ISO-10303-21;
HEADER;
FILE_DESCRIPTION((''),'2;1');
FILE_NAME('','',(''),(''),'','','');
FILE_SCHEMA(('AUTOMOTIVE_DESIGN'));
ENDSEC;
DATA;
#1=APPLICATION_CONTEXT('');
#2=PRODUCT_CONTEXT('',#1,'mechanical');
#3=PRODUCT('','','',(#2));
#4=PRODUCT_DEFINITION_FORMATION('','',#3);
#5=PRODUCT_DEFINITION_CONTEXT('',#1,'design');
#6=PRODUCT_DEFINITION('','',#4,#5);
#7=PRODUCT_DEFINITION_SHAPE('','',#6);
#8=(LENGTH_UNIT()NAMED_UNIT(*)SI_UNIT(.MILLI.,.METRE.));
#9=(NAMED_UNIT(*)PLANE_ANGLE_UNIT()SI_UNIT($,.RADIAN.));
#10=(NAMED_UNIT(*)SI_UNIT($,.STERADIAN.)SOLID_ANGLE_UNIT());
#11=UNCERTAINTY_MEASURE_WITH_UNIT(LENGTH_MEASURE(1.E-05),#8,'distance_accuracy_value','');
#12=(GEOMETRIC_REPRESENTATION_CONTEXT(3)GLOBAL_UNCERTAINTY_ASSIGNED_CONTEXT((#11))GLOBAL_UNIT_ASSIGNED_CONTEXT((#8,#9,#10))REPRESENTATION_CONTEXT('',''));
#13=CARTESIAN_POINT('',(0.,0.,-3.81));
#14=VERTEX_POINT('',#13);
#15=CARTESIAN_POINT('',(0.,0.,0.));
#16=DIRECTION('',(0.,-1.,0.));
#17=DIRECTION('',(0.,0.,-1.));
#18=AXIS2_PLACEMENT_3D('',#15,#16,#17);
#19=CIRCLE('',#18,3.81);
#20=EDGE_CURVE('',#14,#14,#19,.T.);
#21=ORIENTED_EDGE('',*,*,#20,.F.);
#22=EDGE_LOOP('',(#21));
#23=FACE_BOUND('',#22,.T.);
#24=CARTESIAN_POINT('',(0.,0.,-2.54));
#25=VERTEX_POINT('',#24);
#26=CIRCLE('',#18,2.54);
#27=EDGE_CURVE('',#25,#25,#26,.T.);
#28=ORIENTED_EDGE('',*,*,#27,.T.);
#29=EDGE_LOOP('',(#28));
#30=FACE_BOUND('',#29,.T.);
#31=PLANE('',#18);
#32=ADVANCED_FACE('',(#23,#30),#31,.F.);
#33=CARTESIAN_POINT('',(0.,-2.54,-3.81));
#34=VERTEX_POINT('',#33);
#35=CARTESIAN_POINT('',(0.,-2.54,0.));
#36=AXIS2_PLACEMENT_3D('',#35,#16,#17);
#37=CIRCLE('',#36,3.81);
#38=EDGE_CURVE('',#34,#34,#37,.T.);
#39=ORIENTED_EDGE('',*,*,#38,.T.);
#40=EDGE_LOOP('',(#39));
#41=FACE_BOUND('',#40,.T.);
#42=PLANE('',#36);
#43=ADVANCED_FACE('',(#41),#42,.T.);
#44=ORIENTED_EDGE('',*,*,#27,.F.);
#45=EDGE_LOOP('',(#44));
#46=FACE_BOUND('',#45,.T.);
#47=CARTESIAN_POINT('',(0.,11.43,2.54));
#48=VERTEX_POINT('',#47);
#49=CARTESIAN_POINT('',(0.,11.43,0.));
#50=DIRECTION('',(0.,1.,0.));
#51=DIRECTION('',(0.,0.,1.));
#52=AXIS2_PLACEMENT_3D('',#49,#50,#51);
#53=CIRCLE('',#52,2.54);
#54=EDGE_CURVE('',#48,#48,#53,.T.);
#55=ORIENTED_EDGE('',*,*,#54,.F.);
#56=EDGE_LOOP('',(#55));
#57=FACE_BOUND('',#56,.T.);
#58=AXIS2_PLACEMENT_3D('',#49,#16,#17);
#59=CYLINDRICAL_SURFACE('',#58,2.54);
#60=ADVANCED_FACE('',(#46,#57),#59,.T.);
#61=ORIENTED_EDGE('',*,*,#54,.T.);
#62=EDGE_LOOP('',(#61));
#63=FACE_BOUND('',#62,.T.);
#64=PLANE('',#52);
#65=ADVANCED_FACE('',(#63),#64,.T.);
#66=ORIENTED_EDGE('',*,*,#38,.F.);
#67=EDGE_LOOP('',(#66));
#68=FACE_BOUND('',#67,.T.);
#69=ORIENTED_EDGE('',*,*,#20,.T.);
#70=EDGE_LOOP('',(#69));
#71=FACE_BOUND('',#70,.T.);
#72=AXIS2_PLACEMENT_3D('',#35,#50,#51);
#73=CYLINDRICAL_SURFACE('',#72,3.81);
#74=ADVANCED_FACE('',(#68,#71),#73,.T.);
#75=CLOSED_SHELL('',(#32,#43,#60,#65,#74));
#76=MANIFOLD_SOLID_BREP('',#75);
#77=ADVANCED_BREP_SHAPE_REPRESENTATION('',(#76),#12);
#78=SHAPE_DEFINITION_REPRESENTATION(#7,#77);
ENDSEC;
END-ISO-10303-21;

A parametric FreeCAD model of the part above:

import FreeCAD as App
import Part
import Sketcher
from FreeCAD import Vector
Q = App.Units.Quantity

doc = App.newDocument("Part")
body = doc.addObject("PartDesign::Body", "Body")

sketch1 = body.newObject("Sketcher::SketchObject", "Sketch")
sketch1.AttachmentSupport = (doc.getObject("XZ_Plane"), [""])
sketch1.MapMode = "FlatFace"
sketch1.addGeometry(Part.Circle(Vector(0, 0, 0), Vector(0, 0, 1), 2.5), False)
sketch1.addConstraint([
    Sketcher.Constraint("Coincident", 0, 3, -1, 1),
    Sketcher.Constraint("Diameter", 0, Q("0.2 in")),
])
pad1 = body.newObject("PartDesign::Pad", "Pad")
pad1.Profile = sketch1
pad1.Length = Q("0.45 in")
pad1.Reversed = True

sketch2 = body.newObject("Sketcher::SketchObject", "Sketch001")
sketch2.AttachmentSupport = (doc.getObject("XZ_Plane"), [""])
sketch2.MapMode = "FlatFace"
sketch2.addGeometry(Part.Circle(Vector(0, 0, 0), Vector(0, 0, 1), 3.8), False)
sketch2.addConstraint([
    Sketcher.Constraint("Coincident", 0, 3, -1, 1),
    Sketcher.Constraint("Diameter", 0, Q("0.3 in")),
])
pad2 = body.newObject("PartDesign::Pad", "Pad001")
pad2.Profile = sketch2
pad2.Length = Q("0.1 in")

doc.recompute()
